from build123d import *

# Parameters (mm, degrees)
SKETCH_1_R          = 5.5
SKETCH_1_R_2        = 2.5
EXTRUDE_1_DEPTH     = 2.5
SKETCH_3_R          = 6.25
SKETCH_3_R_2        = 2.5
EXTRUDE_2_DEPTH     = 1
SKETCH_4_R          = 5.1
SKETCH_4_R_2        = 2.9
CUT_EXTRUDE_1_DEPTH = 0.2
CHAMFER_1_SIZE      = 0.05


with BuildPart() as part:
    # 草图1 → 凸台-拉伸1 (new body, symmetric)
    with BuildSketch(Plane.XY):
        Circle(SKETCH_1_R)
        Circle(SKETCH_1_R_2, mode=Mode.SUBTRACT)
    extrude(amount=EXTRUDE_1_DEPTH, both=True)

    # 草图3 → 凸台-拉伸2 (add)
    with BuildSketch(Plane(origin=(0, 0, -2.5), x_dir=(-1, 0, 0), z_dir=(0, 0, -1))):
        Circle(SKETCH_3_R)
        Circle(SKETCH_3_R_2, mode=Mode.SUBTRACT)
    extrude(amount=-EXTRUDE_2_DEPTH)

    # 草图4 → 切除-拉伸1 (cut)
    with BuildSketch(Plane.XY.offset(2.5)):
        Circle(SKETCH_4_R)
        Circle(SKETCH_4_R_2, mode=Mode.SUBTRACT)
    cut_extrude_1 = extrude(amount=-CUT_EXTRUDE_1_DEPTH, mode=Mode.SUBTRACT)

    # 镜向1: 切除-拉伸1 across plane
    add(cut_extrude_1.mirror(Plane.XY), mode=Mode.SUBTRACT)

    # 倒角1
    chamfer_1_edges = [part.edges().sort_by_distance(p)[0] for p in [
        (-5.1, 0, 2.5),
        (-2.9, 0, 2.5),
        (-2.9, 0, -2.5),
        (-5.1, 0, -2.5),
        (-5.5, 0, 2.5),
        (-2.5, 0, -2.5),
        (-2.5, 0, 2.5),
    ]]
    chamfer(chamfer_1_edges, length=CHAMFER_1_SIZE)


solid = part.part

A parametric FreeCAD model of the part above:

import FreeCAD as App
import Part
import Sketcher

V = App.Vector
Q = App.Units.Quantity


def edges_at(feature, points):
    """Names of the edges that pass closest to the given points."""
    edges = feature.Shape.Edges
    near = lambda p: min(range(len(edges)), key=lambda i: edges[i].distToShape(Part.Vertex(*p))[0])
    return sorted({f"Edge{near(p) + 1}" for p in points})

doc = App.newDocument("Part")
body = doc.addObject("PartDesign::Body", "Body")

# Sketch on XY plane
sketch1 = body.newObject("Sketcher::SketchObject", "Sketch")
sketch1.AttachmentSupport = (doc.getObject("XY_Plane"), [""])
sketch1.MapMode = "FlatFace"
sketch1.addGeometry([
    Part.Circle(V(0, 0, 0), V(0, 0, 1), 5.5),
    Part.Circle(V(0, 0, 0), V(0, 0, 1), 2.5),
], False)
sketch1.addConstraint([
    Sketcher.Constraint("Coincident", 0, 3, -1, 1),
    Sketcher.Constraint("Coincident", 1, 3, -1, 1),
    Sketcher.Constraint("Diameter", 0, Q("11 mm")),
    Sketcher.Constraint("Diameter", 1, Q("5 mm")),
])
pad1 = body.newObject("PartDesign::Pad", "Pad")
pad1.Profile = sketch1
pad1.Length = 5
pad1.Midplane = True

# Sketch on XY plane
sketch2 = body.newObject("Sketcher::SketchObject", "Sketch001")
sketch2.AttachmentSupport = (doc.getObject("XY_Plane"), [""])
sketch2.MapMode = "FlatFace"
sketch2.AttachmentOffset = App.Placement(V(0, 0, -2.5), App.Rotation())
sketch2.addGeometry([
    Part.Circle(V(0, 0, 0), V(0, 0, 1), 6.25),
    Part.Circle(V(0, 0, 0), V(0, 0, 1), 2.5),
], False)
sketch2.addConstraint([
    Sketcher.Constraint("Coincident", 0, 3, -1, 1),
    Sketcher.Constraint("Coincident", 1, 3, -1, 1),
    Sketcher.Constraint("Diameter", 1, Q("5 mm")),
    Sketcher.Constraint("Diameter", 0, Q("12.5 mm")),
])
pad2 = body.newObject("PartDesign::Pad", "Pad001")
pad2.Profile = sketch2
pad2.Length = 1

# Sketch on XY plane
sketch3 = body.newObject("Sketcher::SketchObject", "Sketch002")
sketch3.AttachmentSupport = (doc.getObject("XY_Plane"), [""])
sketch3.MapMode = "FlatFace"
sketch3.AttachmentOffset = App.Placement(V(0, 0, 2.5), App.Rotation())
sketch3.addGeometry([
    Part.Circle(V(0, 0, 0), V(0, 0, 1), 5.1),
    Part.Circle(V(0, 0, 0), V(0, 0, 1), 2.9),
], False)
sketch3.addConstraint([
    Sketcher.Constraint("Coincident", 0, 3, -1, 1),
    Sketcher.Constraint("Coincident", 1, 3, -1, 1),
    Sketcher.Constraint("Diameter", 0, Q("10.2 mm")),
    Sketcher.Constraint("Diameter", 1, Q("5.8 mm")),
])
pocket1 = body.newObject("PartDesign::Pocket", "Pocket")
pocket1.Profile = sketch3
pocket1.Length = 0.2
doc.recompute()

mirrored = body.newObject("PartDesign::Mirrored", "Mirrored")
mirrored.Originals = [pocket1]
mirrored.MirrorPlane = (doc.getObject("XY_Plane"), [""])
body.Tip = mirrored
doc.recompute()

chamfer = body.newObject("PartDesign::Chamfer", "Chamfer")
chamfer.Base = (mirrored, edges_at(mirrored, [
    (-5.1, 0, 2.5),
    (-2.9, 0, 2.5),
    (-2.9, 0, -2.5),
    (-5.1, 0, -2.5),
    (-5.5, 0, 2.5),
    (-2.5, 0, -2.5),
    (-2.5, 0, 2.5),
]))
chamfer.Size = 0.05

doc.recompute()
